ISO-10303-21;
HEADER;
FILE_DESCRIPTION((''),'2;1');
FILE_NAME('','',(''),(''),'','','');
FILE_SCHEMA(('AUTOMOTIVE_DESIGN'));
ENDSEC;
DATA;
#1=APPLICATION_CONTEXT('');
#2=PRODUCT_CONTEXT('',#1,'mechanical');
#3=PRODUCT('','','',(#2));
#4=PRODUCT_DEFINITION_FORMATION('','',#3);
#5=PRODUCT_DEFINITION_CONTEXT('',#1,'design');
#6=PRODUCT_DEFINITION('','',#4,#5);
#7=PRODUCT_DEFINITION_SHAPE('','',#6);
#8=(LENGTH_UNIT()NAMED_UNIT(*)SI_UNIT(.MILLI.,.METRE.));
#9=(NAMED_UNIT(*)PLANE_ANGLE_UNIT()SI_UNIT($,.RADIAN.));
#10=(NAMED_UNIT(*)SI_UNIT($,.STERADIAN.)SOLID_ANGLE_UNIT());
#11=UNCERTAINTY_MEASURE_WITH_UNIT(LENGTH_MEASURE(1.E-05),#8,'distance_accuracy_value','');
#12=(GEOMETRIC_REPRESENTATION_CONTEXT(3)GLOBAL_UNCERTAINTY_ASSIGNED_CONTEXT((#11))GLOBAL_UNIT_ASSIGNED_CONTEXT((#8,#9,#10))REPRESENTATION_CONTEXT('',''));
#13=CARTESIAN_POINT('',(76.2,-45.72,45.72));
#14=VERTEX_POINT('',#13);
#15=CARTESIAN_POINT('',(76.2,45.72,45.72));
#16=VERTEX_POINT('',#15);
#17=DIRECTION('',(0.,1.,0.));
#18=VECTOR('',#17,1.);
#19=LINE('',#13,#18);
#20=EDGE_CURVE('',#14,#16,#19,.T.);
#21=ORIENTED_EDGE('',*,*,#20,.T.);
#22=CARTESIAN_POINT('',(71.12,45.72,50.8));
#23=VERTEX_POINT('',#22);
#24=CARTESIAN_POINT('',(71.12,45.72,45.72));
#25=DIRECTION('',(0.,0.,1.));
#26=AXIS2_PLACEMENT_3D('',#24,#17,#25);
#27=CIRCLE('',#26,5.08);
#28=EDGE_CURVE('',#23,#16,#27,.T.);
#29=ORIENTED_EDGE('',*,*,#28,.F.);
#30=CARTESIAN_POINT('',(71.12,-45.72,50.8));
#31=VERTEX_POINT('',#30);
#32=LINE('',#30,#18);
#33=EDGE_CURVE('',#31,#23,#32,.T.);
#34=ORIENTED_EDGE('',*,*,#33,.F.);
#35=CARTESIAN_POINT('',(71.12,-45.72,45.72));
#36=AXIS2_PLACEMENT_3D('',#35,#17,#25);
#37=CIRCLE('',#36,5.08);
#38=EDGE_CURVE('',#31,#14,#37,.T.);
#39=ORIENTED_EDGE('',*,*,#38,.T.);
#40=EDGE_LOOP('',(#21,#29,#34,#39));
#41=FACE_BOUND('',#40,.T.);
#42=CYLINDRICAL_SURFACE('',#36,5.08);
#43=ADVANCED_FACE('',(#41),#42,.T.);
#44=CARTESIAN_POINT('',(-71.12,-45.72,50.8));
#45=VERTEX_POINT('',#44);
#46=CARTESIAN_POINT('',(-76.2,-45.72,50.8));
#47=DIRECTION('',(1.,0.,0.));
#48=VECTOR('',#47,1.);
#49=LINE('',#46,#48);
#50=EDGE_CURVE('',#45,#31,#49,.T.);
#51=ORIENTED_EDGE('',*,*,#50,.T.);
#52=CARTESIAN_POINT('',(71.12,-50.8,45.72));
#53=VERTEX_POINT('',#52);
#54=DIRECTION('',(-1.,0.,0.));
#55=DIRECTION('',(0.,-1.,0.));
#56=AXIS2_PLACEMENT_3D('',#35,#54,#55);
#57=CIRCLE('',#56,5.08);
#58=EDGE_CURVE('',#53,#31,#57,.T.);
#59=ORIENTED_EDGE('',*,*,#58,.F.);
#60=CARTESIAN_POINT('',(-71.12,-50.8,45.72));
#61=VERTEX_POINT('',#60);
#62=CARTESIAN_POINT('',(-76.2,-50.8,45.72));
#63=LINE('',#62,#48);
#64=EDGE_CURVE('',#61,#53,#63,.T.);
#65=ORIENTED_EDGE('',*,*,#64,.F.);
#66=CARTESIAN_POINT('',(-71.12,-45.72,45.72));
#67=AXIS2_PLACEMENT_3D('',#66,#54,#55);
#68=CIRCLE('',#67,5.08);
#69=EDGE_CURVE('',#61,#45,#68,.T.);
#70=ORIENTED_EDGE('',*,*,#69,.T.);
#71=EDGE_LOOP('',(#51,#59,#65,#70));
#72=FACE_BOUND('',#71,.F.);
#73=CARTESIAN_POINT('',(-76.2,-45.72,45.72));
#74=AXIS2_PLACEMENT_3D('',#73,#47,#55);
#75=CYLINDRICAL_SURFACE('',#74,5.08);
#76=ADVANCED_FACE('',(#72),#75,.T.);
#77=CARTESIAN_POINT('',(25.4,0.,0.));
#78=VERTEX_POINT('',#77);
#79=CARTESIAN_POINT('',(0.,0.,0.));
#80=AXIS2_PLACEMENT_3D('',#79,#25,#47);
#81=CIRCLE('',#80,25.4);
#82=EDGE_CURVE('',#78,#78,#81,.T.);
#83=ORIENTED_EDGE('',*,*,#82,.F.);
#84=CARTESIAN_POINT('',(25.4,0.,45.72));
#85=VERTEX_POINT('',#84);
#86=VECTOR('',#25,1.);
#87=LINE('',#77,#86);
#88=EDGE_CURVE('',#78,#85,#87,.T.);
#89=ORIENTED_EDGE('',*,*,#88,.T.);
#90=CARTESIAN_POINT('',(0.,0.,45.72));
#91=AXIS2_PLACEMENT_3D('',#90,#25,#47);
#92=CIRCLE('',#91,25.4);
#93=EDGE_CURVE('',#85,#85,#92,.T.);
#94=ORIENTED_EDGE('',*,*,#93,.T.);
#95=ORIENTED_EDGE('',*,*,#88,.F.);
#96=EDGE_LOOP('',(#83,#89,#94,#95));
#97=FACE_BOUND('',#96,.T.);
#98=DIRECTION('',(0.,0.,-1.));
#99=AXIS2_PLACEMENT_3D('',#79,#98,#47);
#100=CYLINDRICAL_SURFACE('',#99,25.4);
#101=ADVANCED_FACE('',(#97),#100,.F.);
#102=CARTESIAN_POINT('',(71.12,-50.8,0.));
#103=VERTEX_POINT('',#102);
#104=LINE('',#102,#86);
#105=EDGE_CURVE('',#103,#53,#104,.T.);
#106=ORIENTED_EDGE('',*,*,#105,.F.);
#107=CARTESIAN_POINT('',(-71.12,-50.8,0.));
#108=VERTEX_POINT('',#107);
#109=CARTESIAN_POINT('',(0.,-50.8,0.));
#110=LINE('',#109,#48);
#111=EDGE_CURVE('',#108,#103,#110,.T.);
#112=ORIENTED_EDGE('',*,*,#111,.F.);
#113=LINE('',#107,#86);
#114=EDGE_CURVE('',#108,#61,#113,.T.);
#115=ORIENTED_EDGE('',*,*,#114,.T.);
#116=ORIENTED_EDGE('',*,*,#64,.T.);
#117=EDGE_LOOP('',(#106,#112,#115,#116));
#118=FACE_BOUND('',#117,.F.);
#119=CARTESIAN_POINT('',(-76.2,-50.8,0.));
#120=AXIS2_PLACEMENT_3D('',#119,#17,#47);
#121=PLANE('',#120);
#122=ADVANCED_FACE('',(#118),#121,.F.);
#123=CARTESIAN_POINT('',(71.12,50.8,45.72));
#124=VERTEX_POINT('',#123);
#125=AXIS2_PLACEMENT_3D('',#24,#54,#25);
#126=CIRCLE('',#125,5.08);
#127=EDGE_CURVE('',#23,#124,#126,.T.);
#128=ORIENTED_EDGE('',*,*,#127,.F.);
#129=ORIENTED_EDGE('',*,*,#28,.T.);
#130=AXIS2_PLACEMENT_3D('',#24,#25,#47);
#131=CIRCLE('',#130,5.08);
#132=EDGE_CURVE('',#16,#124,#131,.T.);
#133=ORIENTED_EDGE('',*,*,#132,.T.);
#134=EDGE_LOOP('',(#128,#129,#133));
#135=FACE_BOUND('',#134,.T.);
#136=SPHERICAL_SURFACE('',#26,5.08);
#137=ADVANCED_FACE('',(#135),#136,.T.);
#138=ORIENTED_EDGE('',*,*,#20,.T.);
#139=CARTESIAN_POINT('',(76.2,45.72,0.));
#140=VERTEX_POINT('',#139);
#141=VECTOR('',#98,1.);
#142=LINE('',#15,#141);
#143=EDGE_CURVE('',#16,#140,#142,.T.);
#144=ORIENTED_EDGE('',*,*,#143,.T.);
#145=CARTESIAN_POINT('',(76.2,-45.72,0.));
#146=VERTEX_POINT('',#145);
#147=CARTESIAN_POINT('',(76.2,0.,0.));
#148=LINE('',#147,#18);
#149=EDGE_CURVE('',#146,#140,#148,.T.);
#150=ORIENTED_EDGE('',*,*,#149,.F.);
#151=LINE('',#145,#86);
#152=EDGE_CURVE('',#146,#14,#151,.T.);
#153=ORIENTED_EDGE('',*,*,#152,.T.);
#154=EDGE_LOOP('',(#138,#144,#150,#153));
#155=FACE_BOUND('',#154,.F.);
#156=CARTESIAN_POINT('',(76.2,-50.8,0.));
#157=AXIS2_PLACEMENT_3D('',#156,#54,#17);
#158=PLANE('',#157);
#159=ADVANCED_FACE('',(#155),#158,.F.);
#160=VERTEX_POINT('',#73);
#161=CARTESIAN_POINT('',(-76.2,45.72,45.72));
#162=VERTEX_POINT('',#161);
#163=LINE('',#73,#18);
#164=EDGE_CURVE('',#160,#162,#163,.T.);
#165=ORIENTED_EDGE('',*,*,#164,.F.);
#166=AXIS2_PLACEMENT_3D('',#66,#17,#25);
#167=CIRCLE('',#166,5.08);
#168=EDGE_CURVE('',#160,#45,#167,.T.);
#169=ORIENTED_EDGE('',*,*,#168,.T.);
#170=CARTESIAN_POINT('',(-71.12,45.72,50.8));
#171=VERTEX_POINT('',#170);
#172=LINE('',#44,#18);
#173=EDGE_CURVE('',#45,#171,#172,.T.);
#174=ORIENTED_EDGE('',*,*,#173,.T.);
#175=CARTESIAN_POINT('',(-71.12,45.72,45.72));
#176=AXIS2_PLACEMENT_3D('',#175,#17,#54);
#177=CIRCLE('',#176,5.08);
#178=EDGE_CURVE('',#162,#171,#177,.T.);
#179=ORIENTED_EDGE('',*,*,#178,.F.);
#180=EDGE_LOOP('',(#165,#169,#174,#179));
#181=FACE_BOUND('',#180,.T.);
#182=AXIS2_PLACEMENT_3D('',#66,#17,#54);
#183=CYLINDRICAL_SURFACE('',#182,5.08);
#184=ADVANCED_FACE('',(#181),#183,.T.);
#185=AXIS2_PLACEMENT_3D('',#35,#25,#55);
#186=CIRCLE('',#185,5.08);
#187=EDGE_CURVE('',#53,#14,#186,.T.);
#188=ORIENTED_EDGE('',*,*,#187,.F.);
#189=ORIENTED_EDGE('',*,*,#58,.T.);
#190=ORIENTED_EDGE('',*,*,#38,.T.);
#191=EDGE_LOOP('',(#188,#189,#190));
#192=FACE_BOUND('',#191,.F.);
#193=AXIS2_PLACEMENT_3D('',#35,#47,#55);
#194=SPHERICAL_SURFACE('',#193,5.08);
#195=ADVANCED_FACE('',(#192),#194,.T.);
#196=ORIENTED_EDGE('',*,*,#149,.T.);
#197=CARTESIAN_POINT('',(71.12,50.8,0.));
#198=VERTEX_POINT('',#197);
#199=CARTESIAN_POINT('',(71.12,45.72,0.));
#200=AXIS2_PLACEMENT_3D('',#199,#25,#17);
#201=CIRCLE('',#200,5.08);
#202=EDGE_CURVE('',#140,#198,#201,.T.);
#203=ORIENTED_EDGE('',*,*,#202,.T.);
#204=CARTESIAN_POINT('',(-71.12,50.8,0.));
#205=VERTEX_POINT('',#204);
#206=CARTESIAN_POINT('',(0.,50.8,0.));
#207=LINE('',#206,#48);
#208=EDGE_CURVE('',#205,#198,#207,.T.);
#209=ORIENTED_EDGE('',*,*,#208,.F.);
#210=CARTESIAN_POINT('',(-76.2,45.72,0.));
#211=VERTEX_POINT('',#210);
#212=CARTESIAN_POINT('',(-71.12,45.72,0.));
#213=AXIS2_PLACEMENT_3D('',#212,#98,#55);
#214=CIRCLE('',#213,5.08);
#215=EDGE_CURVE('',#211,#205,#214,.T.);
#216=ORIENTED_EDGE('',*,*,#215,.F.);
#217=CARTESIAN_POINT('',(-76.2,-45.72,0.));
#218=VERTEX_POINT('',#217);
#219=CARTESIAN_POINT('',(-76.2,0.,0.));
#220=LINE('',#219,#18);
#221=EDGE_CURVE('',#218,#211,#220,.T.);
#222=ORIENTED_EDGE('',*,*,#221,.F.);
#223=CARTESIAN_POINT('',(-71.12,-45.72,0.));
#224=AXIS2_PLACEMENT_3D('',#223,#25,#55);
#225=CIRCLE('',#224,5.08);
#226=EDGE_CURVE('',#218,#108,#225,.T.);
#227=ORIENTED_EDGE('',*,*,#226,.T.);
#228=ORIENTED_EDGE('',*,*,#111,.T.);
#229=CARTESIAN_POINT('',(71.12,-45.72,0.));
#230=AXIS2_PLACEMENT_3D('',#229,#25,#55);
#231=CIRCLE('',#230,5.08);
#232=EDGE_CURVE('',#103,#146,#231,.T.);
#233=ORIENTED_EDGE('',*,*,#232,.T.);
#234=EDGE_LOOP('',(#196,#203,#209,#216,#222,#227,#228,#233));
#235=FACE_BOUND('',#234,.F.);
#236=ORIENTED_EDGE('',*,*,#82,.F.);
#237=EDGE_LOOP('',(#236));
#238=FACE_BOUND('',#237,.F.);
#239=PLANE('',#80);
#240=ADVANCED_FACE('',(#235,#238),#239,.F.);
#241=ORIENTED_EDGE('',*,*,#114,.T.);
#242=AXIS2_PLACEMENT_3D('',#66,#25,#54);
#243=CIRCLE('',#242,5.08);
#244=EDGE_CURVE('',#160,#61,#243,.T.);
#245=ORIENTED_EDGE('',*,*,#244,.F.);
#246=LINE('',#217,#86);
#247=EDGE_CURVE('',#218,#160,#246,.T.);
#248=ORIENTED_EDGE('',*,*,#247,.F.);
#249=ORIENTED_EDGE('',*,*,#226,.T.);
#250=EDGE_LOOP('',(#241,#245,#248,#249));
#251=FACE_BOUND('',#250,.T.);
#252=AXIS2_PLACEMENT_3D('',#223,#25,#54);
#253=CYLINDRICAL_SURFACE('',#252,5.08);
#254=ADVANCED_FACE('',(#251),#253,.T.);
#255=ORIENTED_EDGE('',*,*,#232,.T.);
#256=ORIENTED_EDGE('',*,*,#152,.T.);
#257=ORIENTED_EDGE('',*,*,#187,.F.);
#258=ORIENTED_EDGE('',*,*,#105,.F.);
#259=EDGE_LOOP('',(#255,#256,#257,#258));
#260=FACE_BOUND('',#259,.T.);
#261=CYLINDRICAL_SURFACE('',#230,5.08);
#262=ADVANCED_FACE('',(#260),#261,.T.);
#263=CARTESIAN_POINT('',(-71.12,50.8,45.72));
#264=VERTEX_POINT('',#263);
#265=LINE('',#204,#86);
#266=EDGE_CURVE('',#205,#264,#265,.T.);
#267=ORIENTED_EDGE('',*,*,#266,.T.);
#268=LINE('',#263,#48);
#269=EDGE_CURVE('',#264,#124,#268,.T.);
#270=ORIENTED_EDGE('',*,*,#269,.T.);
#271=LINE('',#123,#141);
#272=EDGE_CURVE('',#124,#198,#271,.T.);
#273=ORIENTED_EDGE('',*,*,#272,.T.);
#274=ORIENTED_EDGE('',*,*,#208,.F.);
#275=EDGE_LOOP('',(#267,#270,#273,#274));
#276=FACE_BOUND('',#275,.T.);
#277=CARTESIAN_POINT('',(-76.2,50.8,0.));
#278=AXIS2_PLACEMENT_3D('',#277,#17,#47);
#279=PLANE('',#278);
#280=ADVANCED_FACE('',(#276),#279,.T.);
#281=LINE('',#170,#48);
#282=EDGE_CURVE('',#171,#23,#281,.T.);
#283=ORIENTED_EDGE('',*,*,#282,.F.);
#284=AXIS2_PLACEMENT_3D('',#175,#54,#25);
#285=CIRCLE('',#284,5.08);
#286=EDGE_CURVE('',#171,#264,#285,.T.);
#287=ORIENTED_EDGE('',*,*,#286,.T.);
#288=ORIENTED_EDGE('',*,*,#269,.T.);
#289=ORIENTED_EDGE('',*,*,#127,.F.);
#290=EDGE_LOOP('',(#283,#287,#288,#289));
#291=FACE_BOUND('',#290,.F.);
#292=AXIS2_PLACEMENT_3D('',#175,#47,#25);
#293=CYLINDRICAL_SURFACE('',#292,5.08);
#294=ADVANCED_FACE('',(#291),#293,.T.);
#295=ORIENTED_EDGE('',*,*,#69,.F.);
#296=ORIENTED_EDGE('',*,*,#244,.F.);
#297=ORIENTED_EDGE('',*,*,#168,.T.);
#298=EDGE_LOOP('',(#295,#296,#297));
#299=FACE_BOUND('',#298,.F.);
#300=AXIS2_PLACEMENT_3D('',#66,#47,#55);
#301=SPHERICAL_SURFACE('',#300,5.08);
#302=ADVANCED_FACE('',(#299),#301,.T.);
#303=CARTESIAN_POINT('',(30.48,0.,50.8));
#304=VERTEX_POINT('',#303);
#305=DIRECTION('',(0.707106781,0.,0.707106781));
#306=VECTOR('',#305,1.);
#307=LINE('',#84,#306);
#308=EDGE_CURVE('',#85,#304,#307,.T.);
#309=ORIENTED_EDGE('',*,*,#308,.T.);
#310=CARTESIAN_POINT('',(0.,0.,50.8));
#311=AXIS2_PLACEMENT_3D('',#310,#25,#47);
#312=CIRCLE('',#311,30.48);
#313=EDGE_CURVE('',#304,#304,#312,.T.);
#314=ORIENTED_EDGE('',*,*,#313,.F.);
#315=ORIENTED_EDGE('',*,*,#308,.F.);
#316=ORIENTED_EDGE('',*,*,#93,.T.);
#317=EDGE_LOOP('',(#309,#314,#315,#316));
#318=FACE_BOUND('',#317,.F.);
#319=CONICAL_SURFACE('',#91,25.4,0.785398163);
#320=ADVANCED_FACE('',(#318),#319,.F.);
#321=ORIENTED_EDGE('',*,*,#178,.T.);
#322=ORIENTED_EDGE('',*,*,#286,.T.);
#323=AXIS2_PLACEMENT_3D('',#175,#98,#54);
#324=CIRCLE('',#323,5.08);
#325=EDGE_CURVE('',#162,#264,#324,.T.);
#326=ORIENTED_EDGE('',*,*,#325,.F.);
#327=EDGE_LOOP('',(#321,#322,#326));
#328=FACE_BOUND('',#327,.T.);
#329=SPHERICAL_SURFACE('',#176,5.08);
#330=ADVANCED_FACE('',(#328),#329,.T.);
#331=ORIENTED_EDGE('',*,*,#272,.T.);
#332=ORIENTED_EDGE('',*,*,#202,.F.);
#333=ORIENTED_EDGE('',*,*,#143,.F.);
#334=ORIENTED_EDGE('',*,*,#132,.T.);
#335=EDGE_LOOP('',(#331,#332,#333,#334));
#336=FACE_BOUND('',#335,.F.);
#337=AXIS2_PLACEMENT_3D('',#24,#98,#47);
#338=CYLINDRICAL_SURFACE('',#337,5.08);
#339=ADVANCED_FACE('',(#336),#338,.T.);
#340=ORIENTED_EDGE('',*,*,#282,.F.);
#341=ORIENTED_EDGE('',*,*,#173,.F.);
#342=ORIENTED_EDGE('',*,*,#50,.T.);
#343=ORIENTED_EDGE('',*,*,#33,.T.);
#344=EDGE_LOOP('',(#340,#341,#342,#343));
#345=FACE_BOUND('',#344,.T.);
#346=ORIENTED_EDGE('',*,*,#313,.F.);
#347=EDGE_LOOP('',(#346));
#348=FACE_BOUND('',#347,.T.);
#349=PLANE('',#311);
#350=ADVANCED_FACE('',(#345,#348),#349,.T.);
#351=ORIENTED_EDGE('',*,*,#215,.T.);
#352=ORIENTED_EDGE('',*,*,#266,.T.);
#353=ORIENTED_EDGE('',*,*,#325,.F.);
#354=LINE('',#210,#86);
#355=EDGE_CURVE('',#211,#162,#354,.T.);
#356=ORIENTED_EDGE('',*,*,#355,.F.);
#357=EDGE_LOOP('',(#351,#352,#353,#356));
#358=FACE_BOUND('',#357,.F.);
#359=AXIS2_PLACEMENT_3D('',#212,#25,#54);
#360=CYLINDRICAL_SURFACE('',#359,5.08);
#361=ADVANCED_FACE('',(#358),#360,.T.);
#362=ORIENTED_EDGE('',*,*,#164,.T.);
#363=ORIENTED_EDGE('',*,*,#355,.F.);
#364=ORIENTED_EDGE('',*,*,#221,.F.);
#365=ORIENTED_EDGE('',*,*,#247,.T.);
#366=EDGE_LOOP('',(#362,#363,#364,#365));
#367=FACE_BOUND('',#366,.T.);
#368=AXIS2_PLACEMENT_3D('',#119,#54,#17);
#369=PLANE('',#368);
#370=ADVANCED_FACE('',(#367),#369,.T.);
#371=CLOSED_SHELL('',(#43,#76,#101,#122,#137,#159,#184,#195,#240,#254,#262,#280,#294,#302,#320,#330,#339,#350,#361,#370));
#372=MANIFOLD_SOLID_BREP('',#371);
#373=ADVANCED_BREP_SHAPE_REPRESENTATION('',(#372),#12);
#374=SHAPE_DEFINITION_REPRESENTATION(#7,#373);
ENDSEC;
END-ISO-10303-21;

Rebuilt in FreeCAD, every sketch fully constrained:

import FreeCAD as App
import Part
import Sketcher
from FreeCAD import Vector
Q = App.Units.Quantity


def edges_at(feature, points):
    """Names of the edges that pass closest to the given points."""
    edges = feature.Shape.Edges
    near = lambda p: min(range(len(edges)), key=lambda i: edges[i].distToShape(Part.Vertex(*p))[0])
    return sorted({f"Edge{near(p) + 1}" for p in points})


def add_polygon(sketch, points):
    """Adds a closed chain of lines whose ends are joined by coincident constraints."""
    first, n = sketch.GeometryCount, len(points)
    for a, b in zip(points, points[1:] + points[:1]):
        sketch.addGeometry(Part.LineSegment(App.Vector(*a, 0), App.Vector(*b, 0)), False)
    for i in range(n):
        sketch.addConstraint(Sketcher.Constraint("Coincident", first + i, 2, first + (i + 1) % n, 1))

doc = App.newDocument("Part")
params = doc.addObject("Spreadsheet::Sheet", "Params")
for row, (alias, value) in enumerate([
    ("sketch1_diameter", "2 in"),
    ("sketch1_width", "6 in"),
    ("sketch1_height", "4 in"),
    ("pad1_length", "2 in"),
    ("fillet_radius", "0.2 in"),
    ("fillet2_radius", "0.2 in"),
    ("fillet3_radius", "0.2 in"),
    ("fillet4_radius", "0.2 in"),
    ("chamfer_size", "0.2 in"),
], start=1):
    params.set(f"A{row}", alias)
    params.set(f"B{row}", "=" + value)
    params.setAlias(f"B{row}", alias)

body = doc.addObject("PartDesign::Body", "Body")

# Sketch on XY plane
sketch1 = doc.addObject("Sketcher::SketchObject", "Sketch")
body.addObject(sketch1)
sketch1.AttachmentSupport = (doc.XY_Plane, [""])
sketch1.MapMode = "FlatFace"
add_polygon(sketch1, [(-76, 51), (-76, -51), (76, -51), (76, 51)])  # lines 0-3
sketch1.addGeometry(Part.Circle(Vector(0, 0, 0), Vector(0, 0, 1), 25), False)  # 4
sketch1.addConstraint([
    Sketcher.Constraint("Vertical", 0),
    Sketcher.Constraint("Horizontal", 1),
    Sketcher.Constraint("Vertical", 2),
    Sketcher.Constraint("Horizontal", 3),
    Sketcher.Constraint("Coincident", 4, 3, -1, 1),
    Sketcher.Constraint("Symmetric", 0, 2, 2, 2, -1, 1),
    Sketcher.Constraint("Diameter", 4, Q("2 in")),
    Sketcher.Constraint("DistanceX", 1, 1, 1, 2, Q("6 in")),
    Sketcher.Constraint("DistanceY", 0, 2, 0, 1, Q("4 in")),
])
sketch1.setExpression("Constraints[10]", "Params.sketch1_diameter")
sketch1.setExpression("Constraints[11]", "Params.sketch1_width")
sketch1.setExpression("Constraints[12]", "Params.sketch1_height")
pad1 = doc.addObject("PartDesign::Pad", "Pad")
body.addObject(pad1)
pad1.Profile = sketch1
pad1.setExpression("Length", "Params.pad1_length")
doc.recompute()

fillet = doc.addObject("PartDesign::Fillet", "Fillet")
body.addObject(fillet)
fillet.Base = (pad1, edges_at(pad1, [(0, -50.8, 50.8)]))
fillet.setExpression("Radius", "Params.fillet_radius")
doc.recompute()

fillet2 = doc.addObject("PartDesign::Fillet", "Fillet001")
body.addObject(fillet2)
fillet2.Base = (fillet, edges_at(fillet, [(76.2, 2.54, 50.8)]))
fillet2.setExpression("Radius", "Params.fillet2_radius")
doc.recompute()

fillet3 = doc.addObject("PartDesign::Fillet", "Fillet002")
body.addObject(fillet3)
fillet3.Base = (fillet2, edges_at(fillet2, [(-76.2, 2.54, 50.8)]))
fillet3.setExpression("Radius", "Params.fillet3_radius")
doc.recompute()

fillet4 = doc.addObject("PartDesign::Fillet", "Fillet003")
body.addObject(fillet4)
fillet4.Base = (fillet3, edges_at(fillet3, [(-71.12, 2.54, 50.8), (0, 50.8, 50.8)]))
fillet4.setExpression("Radius", "Params.fillet4_radius")
doc.recompute()

chamfer = doc.addObject("PartDesign::Chamfer", "Chamfer")
body.addObject(chamfer)
chamfer.Base = (fillet4, edges_at(fillet4, [(-25.4, 0, 50.8)]))
chamfer.setExpression("Size", "Params.chamfer_size")

doc.recompute()
